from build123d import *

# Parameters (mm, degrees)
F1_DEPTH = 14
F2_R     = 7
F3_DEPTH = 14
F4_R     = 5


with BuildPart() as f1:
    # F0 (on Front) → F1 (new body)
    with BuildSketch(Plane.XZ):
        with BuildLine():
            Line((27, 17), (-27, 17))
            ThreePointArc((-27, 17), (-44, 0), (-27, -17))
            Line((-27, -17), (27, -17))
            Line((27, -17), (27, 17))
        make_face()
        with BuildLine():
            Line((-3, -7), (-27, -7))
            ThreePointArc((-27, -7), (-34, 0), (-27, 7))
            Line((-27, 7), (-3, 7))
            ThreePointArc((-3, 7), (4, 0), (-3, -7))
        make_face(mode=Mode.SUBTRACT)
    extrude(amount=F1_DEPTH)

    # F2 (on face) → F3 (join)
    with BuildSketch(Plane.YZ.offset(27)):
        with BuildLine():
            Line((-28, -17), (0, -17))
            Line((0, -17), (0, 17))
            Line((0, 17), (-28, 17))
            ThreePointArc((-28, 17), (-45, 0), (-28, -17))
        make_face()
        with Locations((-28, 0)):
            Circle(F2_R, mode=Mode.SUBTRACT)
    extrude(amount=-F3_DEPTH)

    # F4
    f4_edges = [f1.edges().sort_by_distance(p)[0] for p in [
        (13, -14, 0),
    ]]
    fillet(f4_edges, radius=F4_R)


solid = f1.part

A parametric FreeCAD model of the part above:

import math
import FreeCAD as App
import Part
import Sketcher

V = App.Vector


def edges_at(feature, points):
    """Names of the edges that pass closest to the given points."""
    edges = feature.Shape.Edges
    near = lambda p: min(range(len(edges)), key=lambda i: edges[i].distToShape(Part.Vertex(*p))[0])
    return sorted({f"Edge{near(p) + 1}" for p in points})

doc = App.newDocument("Part")
body = doc.addObject("PartDesign::Body", "Body")

sketch1 = doc.addObject("Sketcher::SketchObject", "Sketch")
body.addObject(sketch1)
sketch1.AttachmentSupport = (doc.XZ_Plane, [""])
sketch1.MapMode = "FlatFace"
sketch1.addGeometry(Part.LineSegment(V(27, 17, 0), V(-27, 17, 0)), False)
sketch1.addGeometry(Part.ArcOfCircle(Part.Circle(V(-27, 0, 0), V(0, 0, 1), 17), math.radians(90), math.radians(270)), False)
sketch1.addGeometry(Part.LineSegment(V(-27, -17, 0), V(27, -17, 0)), False)
sketch1.addGeometry(Part.LineSegment(V(27, -17, 0), V(27, 17, 0)), False)
sketch1.addGeometry(Part.ArcOfCircle(Part.Circle(V(-3, 0, 0), V(0, 0, 1), 7), math.radians(-90), math.radians(90)), False)
sketch1.addGeometry(Part.LineSegment(V(-3, -7, 0), V(-27, -7, 0)), False)
sketch1.addGeometry(Part.ArcOfCircle(Part.Circle(V(-27, 0, 0), V(0, 0, 1), 7), math.radians(90), math.radians(270)), False)
sketch1.addGeometry(Part.LineSegment(V(-27, 7, 0), V(-3, 7, 0)), False)
sketch1.addConstraint(Sketcher.Constraint("Tangent", 0, 2, 1, 1))
sketch1.addConstraint(Sketcher.Constraint("Tangent", 1, 2, 2, 1))
sketch1.addConstraint(Sketcher.Constraint("Coincident", 2, 2, 3, 1))
sketch1.addConstraint(Sketcher.Constraint("Coincident", 3, 2, 0, 1))
sketch1.addConstraint(Sketcher.Constraint("Tangent", 4, 1, 5, 1))
sketch1.addConstraint(Sketcher.Constraint("Tangent", 5, 2, 6, 2))
sketch1.addConstraint(Sketcher.Constraint("Tangent", 6, 1, 7, 1))
sketch1.addConstraint(Sketcher.Constraint("Tangent", 7, 2, 4, 2))
sketch1.addConstraint(Sketcher.Constraint("Horizontal", 0))
sketch1.addConstraint(Sketcher.Constraint("Horizontal", 2))
sketch1.addConstraint(Sketcher.Constraint("Vertical", 3))
sketch1.addConstraint(Sketcher.Constraint("Horizontal", 5))
sketch1.addConstraint(Sketcher.Constraint("Horizontal", 7))
sketch1.addConstraint(Sketcher.Constraint("Coincident", 6, 3, 1, 3))
sketch1.addConstraint(Sketcher.Constraint("Symmetric", 0, 2, 2, 2, -1, 1))
sketch1.addConstraint(Sketcher.Constraint("Radius", 1, 17.0))
sketch1.addConstraint(Sketcher.Constraint("Radius", 4, 7.0))
sketch1.addConstraint(Sketcher.Constraint("DistanceX", 0, 2, 0, 1, 54.0))
sketch1.addConstraint(Sketcher.Constraint("DistanceX", 5, 2, 5, 1, 24.0))
pad1 = doc.addObject("PartDesign::Pad", "Pad")
body.addObject(pad1)
pad1.Profile = sketch1
pad1.Length = 14

sketch2 = doc.addObject("Sketcher::SketchObject", "Sketch001")
body.addObject(sketch2)
sketch2.AttachmentSupport = (doc.YZ_Plane, [""])
sketch2.MapMode = "FlatFace"
sketch2.AttachmentOffset = App.Placement(V(0, 0, 27), App.Rotation())
sketch2.addGeometry(Part.LineSegment(V(-28, -17, 0), V(0, -17, 0)), False)
sketch2.addGeometry(Part.LineSegment(V(0, -17, 0), V(0, 17, 0)), False)
sketch2.addGeometry(Part.LineSegment(V(0, 17, 0), V(-28, 17, 0)), False)
sketch2.addGeometry(Part.ArcOfCircle(Part.Circle(V(-28, 0, 0), V(0, 0, 1), 17), math.radians(90), math.radians(270)), False)
sketch2.addGeometry(Part.Circle(V(-28, 0, 0), V(0, 0, 1), 7), False)
sketch2.addConstraint(Sketcher.Constraint("Coincident", 0, 2, 1, 1))
sketch2.addConstraint(Sketcher.Constraint("Coincident", 1, 2, 2, 1))
sketch2.addConstraint(Sketcher.Constraint("Tangent", 2, 2, 3, 1))
sketch2.addConstraint(Sketcher.Constraint("Tangent", 3, 2, 0, 1))
sketch2.addConstraint(Sketcher.Constraint("Horizontal", 0))
sketch2.addConstraint(Sketcher.Constraint("Vertical", 1))
sketch2.addConstraint(Sketcher.Constraint("Horizontal", 2))
sketch2.addConstraint(Sketcher.Constraint("Coincident", 4, 3, 3, 3))
sketch2.addConstraint(Sketcher.Constraint("Symmetric", 0, 2, 1, 2, -1, 1))
sketch2.addConstraint(Sketcher.Constraint("Diameter", 4, 14.0))
sketch2.addConstraint(Sketcher.Constraint("Radius", 3, 17.0))
sketch2.addConstraint(Sketcher.Constraint("DistanceX", 0, 1, 0, 2, 28.0))
pad2 = doc.addObject("PartDesign::Pad", "Pad001")
body.addObject(pad2)
pad2.Profile = sketch2
pad2.Length = 14
pad2.Reversed = True
doc.recompute()

fillet = doc.addObject("PartDesign::Fillet", "Fillet")
body.addObject(fillet)
fillet.Base = (pad2, edges_at(pad2, [(13, -14, 0)]))
fillet.Radius = 5

doc.recompute()
